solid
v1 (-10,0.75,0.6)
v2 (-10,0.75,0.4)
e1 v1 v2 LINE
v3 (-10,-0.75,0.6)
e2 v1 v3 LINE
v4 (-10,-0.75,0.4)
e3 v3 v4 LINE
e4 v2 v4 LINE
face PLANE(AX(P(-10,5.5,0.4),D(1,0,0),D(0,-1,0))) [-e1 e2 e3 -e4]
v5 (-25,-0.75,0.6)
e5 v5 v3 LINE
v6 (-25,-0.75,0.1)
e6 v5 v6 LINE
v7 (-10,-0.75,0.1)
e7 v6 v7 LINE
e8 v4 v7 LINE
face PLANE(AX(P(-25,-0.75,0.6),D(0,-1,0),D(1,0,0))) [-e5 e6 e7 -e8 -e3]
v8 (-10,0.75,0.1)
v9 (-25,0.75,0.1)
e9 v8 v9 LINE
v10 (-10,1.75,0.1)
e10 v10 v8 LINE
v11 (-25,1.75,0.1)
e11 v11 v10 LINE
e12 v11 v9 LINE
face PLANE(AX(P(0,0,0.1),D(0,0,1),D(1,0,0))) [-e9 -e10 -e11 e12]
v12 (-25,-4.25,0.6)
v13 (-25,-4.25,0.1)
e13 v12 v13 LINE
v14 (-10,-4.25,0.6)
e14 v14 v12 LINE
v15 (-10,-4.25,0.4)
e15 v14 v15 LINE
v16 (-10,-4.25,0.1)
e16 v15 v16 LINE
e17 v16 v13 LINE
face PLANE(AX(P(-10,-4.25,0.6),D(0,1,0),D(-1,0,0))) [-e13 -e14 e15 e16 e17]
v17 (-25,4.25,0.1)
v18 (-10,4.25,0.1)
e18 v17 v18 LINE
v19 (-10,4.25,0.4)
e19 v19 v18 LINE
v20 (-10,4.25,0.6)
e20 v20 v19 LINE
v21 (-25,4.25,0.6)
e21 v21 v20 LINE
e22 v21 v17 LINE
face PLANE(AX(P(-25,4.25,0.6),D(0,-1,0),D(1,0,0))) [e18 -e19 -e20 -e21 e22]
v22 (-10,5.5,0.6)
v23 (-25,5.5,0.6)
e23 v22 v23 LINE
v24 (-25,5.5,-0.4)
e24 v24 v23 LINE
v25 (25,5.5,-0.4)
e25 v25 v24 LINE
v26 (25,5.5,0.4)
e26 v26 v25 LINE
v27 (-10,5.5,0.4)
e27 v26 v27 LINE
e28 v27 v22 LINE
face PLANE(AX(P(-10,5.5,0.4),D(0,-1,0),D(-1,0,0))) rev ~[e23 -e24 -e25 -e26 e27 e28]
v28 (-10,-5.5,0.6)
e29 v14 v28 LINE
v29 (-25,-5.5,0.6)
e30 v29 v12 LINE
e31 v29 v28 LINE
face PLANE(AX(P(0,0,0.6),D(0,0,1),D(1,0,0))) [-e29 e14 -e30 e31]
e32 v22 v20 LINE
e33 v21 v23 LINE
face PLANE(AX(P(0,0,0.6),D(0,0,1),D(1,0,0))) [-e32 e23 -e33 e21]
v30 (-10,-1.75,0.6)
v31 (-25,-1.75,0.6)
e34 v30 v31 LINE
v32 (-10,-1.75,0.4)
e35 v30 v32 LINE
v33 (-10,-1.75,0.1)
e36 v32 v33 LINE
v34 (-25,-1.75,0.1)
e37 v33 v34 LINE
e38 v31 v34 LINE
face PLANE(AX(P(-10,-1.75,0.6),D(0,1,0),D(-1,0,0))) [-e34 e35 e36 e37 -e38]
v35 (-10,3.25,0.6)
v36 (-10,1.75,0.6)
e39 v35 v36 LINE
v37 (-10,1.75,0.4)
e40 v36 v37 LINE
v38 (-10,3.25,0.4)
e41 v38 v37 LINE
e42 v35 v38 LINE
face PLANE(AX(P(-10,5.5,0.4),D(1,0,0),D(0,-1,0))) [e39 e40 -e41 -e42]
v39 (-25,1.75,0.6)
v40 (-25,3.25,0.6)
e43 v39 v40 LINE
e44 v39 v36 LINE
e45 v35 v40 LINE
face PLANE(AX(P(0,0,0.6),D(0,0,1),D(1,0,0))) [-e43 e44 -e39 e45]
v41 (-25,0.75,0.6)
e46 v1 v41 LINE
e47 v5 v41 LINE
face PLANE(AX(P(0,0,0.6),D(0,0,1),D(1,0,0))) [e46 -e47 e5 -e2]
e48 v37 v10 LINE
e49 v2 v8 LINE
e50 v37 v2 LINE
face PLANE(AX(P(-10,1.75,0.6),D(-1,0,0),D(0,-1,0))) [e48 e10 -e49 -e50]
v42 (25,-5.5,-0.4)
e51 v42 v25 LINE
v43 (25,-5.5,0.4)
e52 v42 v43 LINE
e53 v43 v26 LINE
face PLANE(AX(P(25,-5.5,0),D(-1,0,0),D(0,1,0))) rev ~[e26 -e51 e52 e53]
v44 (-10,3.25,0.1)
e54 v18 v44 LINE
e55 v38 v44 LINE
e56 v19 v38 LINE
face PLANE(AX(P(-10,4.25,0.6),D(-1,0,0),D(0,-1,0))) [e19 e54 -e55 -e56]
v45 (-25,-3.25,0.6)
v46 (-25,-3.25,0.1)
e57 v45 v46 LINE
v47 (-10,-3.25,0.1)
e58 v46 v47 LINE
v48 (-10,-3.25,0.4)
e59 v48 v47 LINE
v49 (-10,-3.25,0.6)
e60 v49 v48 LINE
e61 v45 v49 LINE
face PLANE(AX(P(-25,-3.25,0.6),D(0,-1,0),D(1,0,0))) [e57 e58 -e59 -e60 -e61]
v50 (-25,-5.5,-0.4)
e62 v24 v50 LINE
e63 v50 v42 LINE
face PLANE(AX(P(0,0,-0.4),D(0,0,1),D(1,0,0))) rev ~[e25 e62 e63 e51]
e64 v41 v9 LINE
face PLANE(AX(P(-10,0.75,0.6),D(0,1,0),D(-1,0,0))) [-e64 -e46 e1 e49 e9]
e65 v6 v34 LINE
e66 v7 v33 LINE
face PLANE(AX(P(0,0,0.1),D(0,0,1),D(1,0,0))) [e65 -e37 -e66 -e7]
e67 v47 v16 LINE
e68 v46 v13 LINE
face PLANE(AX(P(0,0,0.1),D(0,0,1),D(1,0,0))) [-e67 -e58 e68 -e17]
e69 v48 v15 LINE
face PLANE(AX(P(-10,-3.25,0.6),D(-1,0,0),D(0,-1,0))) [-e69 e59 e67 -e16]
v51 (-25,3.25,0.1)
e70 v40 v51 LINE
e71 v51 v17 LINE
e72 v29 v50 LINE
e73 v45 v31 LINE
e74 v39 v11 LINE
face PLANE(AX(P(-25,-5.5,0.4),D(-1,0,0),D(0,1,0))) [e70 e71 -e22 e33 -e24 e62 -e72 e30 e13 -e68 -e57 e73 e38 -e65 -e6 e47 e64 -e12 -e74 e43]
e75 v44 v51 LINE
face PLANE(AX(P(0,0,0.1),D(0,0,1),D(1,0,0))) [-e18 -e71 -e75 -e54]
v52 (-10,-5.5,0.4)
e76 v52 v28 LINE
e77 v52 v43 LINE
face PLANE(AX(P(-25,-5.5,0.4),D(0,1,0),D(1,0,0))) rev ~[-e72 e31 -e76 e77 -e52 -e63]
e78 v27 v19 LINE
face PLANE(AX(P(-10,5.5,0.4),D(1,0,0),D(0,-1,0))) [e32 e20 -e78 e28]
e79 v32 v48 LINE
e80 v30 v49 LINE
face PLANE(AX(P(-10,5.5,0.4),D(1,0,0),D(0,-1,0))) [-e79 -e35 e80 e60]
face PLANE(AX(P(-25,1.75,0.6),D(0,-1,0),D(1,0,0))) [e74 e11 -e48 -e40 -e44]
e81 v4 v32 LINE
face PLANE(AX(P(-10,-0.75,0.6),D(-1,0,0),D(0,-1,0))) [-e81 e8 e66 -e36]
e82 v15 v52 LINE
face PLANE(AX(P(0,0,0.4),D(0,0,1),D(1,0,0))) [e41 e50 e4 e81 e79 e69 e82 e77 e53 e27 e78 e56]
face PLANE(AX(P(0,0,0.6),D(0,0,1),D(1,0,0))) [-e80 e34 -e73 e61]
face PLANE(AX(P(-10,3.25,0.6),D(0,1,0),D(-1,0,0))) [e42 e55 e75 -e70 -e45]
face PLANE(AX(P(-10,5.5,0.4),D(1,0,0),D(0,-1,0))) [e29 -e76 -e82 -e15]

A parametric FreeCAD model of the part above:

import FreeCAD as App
import Part
import Sketcher
from FreeCAD import Vector
Q = App.Units.Quantity

doc = App.newDocument("Part")
body = doc.addObject("PartDesign::Body", "Body")

# Sketch on XY plane
sketch1 = doc.addObject("Sketcher::SketchObject", "Sketch")
body.addObject(sketch1)
sketch1.AttachmentSupport = (doc.XY_Plane, [""])
sketch1.MapMode = "FlatFace"
sketch1.addGeometry(Part.LineSegment(Vector(-25, 6, 0), Vector(-25, -6, 0)), False)
sketch1.addGeometry(Part.LineSegment(Vector(-25, -6, 0), Vector(25, -6, 0)), False)
sketch1.addGeometry(Part.LineSegment(Vector(25, -6, 0), Vector(25, 6, 0)), False)
sketch1.addGeometry(Part.LineSegment(Vector(25, 6, 0), Vector(-25, 6, 0)), False)
sketch1.addConstraint(Sketcher.Constraint("Coincident", 0, 2, 1, 1))
sketch1.addConstraint(Sketcher.Constraint("Coincident", 1, 2, 2, 1))
sketch1.addConstraint(Sketcher.Constraint("Coincident", 2, 2, 3, 1))
sketch1.addConstraint(Sketcher.Constraint("Coincident", 3, 2, 0, 1))
sketch1.addConstraint(Sketcher.Constraint("Vertical", 0))
sketch1.addConstraint(Sketcher.Constraint("Horizontal", 1))
sketch1.addConstraint(Sketcher.Constraint("Vertical", 2))
sketch1.addConstraint(Sketcher.Constraint("Horizontal", 3))
sketch1.addConstraint(Sketcher.Constraint("Symmetric", 0, 2, 2, 2, -1, 1))
sketch1.addConstraint(Sketcher.Constraint("DistanceX", 1, 1, 1, 2, Q("50 mm")))
sketch1.addConstraint(Sketcher.Constraint("DistanceY", 0, 2, 0, 1, Q("11 mm")))
pad1 = doc.addObject("PartDesign::Pad", "Pad")
body.addObject(pad1)
pad1.Profile = sketch1
pad1.Length = 0.8
pad1.Midplane = True

# Sketch on XY plane
sketch2 = doc.addObject("Sketcher::SketchObject", "Sketch001")
body.addObject(sketch2)
sketch2.AttachmentSupport = (doc.XY_Plane, [""])
sketch2.MapMode = "FlatFace"
sketch2.AttachmentOffset = App.Placement(Vector(0, 0, 0.4), App.Rotation())
sketch2.addGeometry(Part.LineSegment(Vector(-10, -6, 0), Vector(-10, 6, 0)), False)
sketch2.addGeometry(Part.LineSegment(Vector(-10, 6, 0), Vector(-25, 6, 0)), False)
sketch2.addGeometry(Part.LineSegment(Vector(-25, 6, 0), Vector(-25, -6, 0)), False)
sketch2.addGeometry(Part.LineSegment(Vector(-25, -6, 0), Vector(-10, -6, 0)), False)
sketch2.addConstraint(Sketcher.Constraint("Coincident", 0, 2, 1, 1))
sketch2.addConstraint(Sketcher.Constraint("Coincident", 1, 2, 2, 1))
sketch2.addConstraint(Sketcher.Constraint("Coincident", 2, 2, 3, 1))
sketch2.addConstraint(Sketcher.Constraint("Coincident", 3, 2, 0, 1))
sketch2.addConstraint(Sketcher.Constraint("Vertical", 0))
sketch2.addConstraint(Sketcher.Constraint("Horizontal", 1))
sketch2.addConstraint(Sketcher.Constraint("Vertical", 2))
sketch2.addConstraint(Sketcher.Constraint("Horizontal", 3))
sketch2.addConstraint(Sketcher.Constraint("DistanceX", 1, 2, 1, 1, Q("15 mm")))
sketch2.addConstraint(Sketcher.Constraint("DistanceY", 0, 1, 0, 2, Q("11 mm")))
sketch2.addConstraint(Sketcher.Constraint("DistanceX", 0, 2, -1, 1, Q("10 mm")))
sketch2.addConstraint(Sketcher.Constraint("DistanceY", -1, 1, 0, 2, Q("5.5 mm")))
pad2 = doc.addObject("PartDesign::Pad", "Pad001")
body.addObject(pad2)
pad2.Profile = sketch2
pad2.Length = 0.2

# Sketch on XY plane
sketch3 = doc.addObject("Sketcher::SketchObject", "Sketch002")
body.addObject(sketch3)
sketch3.AttachmentSupport = (doc.XY_Plane, [""])
sketch3.MapMode = "FlatFace"
sketch3.AttachmentOffset = App.Placement(Vector(0, 0, 0.6), App.Rotation())
sketch3.addGeometry(Part.LineSegment(Vector(-10, -3.2, 0), Vector(-25, -3.2, 0)), False)
sketch3.addGeometry(Part.LineSegment(Vector(-25, -3.2, 0), Vector(-25, -4.2, 0)), False)
sketch3.addGeometry(Part.LineSegment(Vector(-25, -4.2, 0), Vector(-10, -4.2, 0)), False)
sketch3.addGeometry(Part.LineSegment(Vector(-10, -4.2, 0), Vector(-10, -3.2, 0)), False)
sketch3.addGeometry(Part.LineSegment(Vector(-10, -0.8, 0), Vector(-25, -0.8, 0)), False)
sketch3.addGeometry(Part.LineSegment(Vector(-25, -0.8, 0), Vector(-25, -1.8, 0)), False)
sketch3.addGeometry(Part.LineSegment(Vector(-25, -1.8, 0), Vector(-10, -1.8, 0)), False)
sketch3.addGeometry(Part.LineSegment(Vector(-10, -1.8, 0), Vector(-10, -0.8, 0)), False)
sketch3.addGeometry(Part.LineSegment(Vector(-10, 1.8, 0), Vector(-25, 1.8, 0)), False)
sketch3.addGeometry(Part.LineSegment(Vector(-25, 1.8, 0), Vector(-25, 0.8, 0)), False)
sketch3.addGeometry(Part.LineSegment(Vector(-25, 0.8, 0), Vector(-10, 0.8, 0)), False)
sketch3.addGeometry(Part.LineSegment(Vector(-10, 0.8, 0), Vector(-10, 1.8, 0)), False)
sketch3.addGeometry(Part.LineSegment(Vector(-10, 4.2, 0), Vector(-25, 4.2, 0)), False)
sketch3.addGeometry(Part.LineSegment(Vector(-25, 4.2, 0), Vector(-25, 3.2, 0)), False)
sketch3.addGeometry(Part.LineSegment(Vector(-25, 3.2, 0), Vector(-10, 3.2, 0)), False)
sketch3.addGeometry(Part.LineSegment(Vector(-10, 3.2, 0), Vector(-10, 4.2, 0)), False)
sketch3.addConstraint(Sketcher.Constraint("Coincident", 0, 2, 1, 1))
sketch3.addConstraint(Sketcher.Constraint("Coincident", 1, 2, 2, 1))
sketch3.addConstraint(Sketcher.Constraint("Coincident", 2, 2, 3, 1))
sketch3.addConstraint(Sketcher.Constraint("Coincident", 3, 2, 0, 1))
sketch3.addConstraint(Sketcher.Constraint("Coincident", 4, 2, 5, 1))
sketch3.addConstraint(Sketcher.Constraint("Coincident", 5, 2, 6, 1))
sketch3.addConstraint(Sketcher.Constraint("Coincident", 6, 2, 7, 1))
sketch3.addConstraint(Sketcher.Constraint("Coincident", 7, 2, 4, 1))
sketch3.addConstraint(Sketcher.Constraint("Coincident", 8, 2, 9, 1))
sketch3.addConstraint(Sketcher.Constraint("Coincident", 9, 2, 10, 1))
sketch3.addConstraint(Sketcher.Constraint("Coincident", 10, 2, 11, 1))
sketch3.addConstraint(Sketcher.Constraint("Coincident", 11, 2, 8, 1))
sketch3.addConstraint(Sketcher.Constraint("Coincident", 12, 2, 13, 1))
sketch3.addConstraint(Sketcher.Constraint("Coincident", 13, 2, 14, 1))
sketch3.addConstraint(Sketcher.Constraint("Coincident", 14, 2, 15, 1))
sketch3.addConstraint(Sketcher.Constraint("Coincident", 15, 2, 12, 1))
sketch3.addConstraint(Sketcher.Constraint("Horizontal", 0))
sketch3.addConstraint(Sketcher.Constraint("Vertical", 1))
sketch3.addConstraint(Sketcher.Constraint("Horizontal", 2))
sketch3.addConstraint(Sketcher.Constraint("Vertical", 3))
sketch3.addConstraint(Sketcher.Constraint("Horizontal", 4))
sketch3.addConstraint(Sketcher.Constraint("Vertical", 5))
sketch3.addConstraint(Sketcher.Constraint("Horizontal", 6))
sketch3.addConstraint(Sketcher.Constraint("Vertical", 7))
sketch3.addConstraint(Sketcher.Constraint("Horizontal", 8))
sketch3.addConstraint(Sketcher.Constraint("Vertical", 9))
sketch3.addConstraint(Sketcher.Constraint("Horizontal", 10))
sketch3.addConstraint(Sketcher.Constraint("Vertical", 11))
sketch3.addConstraint(Sketcher.Constraint("Horizontal", 12))
sketch3.addConstraint(Sketcher.Constraint("Vertical", 13))
sketch3.addConstraint(Sketcher.Constraint("Horizontal", 14))
sketch3.addConstraint(Sketcher.Constraint("Vertical", 15))
sketch3.addConstraint(Sketcher.Constraint("Symmetric", 5, 2, 8, 2, -1))
sketch3.addConstraint(Sketcher.Constraint("Symmetric", 7, 2, 10, 2, -1))
sketch3.addConstraint(Sketcher.Constraint("Symmetric", 1, 2, 12, 2, -1))
sketch3.addConstraint(Sketcher.Constraint("Symmetric", 3, 2, 14, 2, -1))
sketch3.addConstraint(Sketcher.Constraint("Vertical", 1, 2, 4, 2))
sketch3.addConstraint(Sketcher.Constraint("Vertical", 3, 2, 6, 2))
sketch3.addConstraint(Sketcher.Constraint("Equal", 3, 5))
sketch3.addConstraint(Sketcher.Constraint("DistanceX", 0, 2, 0, 1, Q("15 mm")))
sketch3.addConstraint(Sketcher.Constraint("DistanceY", 1, 2, 1, 1, Q("1 mm")))
sketch3.addConstraint(Sketcher.Constraint("DistanceX", 2, 2, -1, 1, Q("10 mm")))
sketch3.addConstraint(Sketcher.Constraint("DistanceY", 0, 2, 4, 2, Q("2.5 mm")))
sketch3.addConstraint(Sketcher.Constraint("DistanceY", 4, 2, 8, 2, Q("2.5 mm")))
pocket1 = doc.addObject("PartDesign::Pocket", "Pocket")
body.addObject(pocket1)
pocket1.Profile = sketch3
pocket1.Length = 0.5

doc.recompute()
